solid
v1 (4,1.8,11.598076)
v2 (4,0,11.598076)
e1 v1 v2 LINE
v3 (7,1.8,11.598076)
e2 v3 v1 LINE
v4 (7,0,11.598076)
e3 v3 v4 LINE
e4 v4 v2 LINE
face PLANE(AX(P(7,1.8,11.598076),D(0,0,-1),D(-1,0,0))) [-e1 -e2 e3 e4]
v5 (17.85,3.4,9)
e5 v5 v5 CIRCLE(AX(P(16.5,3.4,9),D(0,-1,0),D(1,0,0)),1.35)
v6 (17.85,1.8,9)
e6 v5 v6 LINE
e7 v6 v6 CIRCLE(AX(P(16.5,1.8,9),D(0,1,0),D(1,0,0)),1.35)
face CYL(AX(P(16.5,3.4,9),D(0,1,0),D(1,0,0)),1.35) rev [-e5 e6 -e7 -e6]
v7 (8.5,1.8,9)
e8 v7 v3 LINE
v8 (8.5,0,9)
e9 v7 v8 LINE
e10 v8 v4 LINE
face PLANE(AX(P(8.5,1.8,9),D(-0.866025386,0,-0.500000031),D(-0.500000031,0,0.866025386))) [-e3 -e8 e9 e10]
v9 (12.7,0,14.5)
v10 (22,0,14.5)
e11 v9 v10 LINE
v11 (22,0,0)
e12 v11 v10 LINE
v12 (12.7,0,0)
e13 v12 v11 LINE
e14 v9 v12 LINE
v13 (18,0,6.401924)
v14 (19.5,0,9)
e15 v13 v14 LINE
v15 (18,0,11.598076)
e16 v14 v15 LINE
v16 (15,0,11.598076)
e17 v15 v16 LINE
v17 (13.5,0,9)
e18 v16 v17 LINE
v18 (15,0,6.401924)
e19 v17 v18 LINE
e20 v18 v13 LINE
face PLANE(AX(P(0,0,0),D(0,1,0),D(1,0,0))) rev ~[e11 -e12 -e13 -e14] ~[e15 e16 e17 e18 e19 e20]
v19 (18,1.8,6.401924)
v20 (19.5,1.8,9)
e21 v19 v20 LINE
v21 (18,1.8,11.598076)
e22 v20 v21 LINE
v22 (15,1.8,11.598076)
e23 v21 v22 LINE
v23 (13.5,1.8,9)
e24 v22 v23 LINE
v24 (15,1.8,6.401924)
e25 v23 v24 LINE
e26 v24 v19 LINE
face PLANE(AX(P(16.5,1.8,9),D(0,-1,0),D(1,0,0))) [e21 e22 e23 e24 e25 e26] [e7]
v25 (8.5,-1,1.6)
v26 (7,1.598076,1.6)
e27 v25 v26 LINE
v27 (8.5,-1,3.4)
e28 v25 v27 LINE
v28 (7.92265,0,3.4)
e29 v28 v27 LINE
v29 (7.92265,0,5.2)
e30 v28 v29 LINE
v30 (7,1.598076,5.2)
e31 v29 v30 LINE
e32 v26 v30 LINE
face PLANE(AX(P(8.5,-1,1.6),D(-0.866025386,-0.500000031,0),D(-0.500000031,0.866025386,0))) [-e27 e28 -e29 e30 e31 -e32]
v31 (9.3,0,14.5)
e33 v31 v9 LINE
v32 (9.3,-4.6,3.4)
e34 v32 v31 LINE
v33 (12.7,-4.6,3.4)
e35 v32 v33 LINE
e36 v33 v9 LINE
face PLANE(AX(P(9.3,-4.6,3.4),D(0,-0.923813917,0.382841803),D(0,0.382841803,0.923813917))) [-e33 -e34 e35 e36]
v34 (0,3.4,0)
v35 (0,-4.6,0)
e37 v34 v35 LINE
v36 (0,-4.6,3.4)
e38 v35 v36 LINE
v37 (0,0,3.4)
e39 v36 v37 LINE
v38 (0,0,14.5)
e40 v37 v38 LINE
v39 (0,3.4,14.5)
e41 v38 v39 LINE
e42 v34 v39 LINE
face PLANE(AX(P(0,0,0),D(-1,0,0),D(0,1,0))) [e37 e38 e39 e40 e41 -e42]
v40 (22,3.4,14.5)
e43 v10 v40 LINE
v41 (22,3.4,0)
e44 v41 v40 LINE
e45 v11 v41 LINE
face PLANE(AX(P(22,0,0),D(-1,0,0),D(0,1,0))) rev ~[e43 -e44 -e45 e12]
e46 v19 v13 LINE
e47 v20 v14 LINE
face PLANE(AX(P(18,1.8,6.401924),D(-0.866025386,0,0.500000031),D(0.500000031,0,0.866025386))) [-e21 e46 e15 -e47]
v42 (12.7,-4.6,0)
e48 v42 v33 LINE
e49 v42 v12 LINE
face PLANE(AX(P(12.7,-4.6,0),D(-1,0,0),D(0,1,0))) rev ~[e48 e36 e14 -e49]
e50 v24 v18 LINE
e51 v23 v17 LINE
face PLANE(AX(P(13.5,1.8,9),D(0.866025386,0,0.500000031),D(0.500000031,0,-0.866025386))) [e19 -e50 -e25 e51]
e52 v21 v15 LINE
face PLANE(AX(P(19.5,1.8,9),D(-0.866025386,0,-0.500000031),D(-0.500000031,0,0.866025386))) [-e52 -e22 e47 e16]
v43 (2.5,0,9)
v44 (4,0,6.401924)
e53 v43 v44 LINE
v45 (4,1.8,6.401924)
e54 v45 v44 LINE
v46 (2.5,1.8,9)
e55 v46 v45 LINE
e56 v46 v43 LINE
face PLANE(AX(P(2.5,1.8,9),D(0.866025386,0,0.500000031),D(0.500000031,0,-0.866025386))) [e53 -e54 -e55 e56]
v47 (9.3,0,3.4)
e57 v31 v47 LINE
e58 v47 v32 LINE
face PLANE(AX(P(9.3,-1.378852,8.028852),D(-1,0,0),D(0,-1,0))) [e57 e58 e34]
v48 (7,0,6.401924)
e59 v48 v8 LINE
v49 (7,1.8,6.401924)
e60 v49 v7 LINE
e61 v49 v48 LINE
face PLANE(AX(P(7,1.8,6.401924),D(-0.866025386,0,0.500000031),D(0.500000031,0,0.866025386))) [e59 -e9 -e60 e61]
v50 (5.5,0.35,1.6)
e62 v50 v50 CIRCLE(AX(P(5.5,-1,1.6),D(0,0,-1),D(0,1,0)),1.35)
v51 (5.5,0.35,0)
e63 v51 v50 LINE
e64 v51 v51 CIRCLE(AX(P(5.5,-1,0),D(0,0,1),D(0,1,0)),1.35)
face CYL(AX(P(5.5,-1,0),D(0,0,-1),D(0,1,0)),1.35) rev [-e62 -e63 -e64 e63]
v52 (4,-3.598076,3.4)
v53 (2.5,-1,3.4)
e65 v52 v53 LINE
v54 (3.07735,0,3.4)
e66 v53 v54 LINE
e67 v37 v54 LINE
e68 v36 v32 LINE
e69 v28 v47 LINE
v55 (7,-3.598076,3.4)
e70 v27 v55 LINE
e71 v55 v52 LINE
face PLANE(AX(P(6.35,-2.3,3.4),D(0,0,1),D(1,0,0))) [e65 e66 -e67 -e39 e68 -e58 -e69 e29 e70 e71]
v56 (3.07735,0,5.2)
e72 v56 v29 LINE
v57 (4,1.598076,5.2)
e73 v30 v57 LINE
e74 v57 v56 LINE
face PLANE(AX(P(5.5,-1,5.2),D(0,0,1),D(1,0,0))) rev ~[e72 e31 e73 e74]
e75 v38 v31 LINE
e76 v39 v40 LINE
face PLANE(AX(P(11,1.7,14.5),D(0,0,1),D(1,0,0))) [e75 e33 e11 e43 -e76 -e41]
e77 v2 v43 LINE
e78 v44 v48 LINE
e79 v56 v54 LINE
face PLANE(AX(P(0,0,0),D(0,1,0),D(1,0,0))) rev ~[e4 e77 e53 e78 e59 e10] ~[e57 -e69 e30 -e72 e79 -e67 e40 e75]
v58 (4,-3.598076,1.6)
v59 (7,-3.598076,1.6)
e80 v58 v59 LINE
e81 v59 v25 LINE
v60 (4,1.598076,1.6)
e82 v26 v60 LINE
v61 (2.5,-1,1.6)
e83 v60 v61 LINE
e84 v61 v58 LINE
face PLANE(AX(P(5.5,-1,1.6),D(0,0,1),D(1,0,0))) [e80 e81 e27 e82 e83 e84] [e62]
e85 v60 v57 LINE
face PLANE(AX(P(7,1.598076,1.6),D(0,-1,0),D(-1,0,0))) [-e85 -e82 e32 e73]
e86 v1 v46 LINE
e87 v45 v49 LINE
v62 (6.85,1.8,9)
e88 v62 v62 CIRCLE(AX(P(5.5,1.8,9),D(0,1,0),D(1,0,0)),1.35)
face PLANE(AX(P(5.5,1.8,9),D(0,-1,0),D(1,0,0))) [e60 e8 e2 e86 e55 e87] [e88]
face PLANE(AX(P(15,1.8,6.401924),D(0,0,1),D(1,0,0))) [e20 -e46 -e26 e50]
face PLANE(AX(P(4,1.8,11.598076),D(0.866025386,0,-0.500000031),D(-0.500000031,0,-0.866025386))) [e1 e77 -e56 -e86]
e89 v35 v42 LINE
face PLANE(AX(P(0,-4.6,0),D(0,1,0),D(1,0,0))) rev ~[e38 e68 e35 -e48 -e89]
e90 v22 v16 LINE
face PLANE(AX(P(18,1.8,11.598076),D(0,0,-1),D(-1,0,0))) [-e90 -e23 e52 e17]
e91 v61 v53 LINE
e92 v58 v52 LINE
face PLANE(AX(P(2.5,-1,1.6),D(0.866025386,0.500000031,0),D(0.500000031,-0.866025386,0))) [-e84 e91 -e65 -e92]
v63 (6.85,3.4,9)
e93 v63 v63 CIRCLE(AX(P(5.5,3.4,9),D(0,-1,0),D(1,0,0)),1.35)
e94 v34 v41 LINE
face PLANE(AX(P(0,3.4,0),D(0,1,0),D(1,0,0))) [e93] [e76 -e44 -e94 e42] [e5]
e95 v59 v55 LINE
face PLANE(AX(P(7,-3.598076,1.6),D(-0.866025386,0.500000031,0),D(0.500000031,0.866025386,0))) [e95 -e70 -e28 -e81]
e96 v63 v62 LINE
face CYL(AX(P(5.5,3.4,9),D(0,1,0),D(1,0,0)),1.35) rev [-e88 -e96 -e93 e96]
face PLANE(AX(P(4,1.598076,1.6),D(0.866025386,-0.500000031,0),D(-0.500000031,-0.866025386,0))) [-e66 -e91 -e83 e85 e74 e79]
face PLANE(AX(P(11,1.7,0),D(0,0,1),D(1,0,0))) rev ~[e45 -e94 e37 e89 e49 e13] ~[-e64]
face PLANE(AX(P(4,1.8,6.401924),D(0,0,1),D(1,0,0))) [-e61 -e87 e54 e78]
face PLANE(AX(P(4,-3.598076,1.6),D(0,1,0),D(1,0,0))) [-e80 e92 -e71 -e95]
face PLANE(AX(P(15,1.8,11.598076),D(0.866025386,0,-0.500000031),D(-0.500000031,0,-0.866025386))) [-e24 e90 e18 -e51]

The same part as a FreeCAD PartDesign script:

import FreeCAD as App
import Part
import Sketcher
from FreeCAD import Vector
Q = App.Units.Quantity


def add_polygon(sketch, points):
    """Adds a closed chain of lines whose ends are joined by coincident constraints."""
    first, n = sketch.GeometryCount, len(points)
    for a, b in zip(points, points[1:] + points[:1]):
        sketch.addGeometry(Part.LineSegment(App.Vector(*a, 0), App.Vector(*b, 0)), False)
    for i in range(n):
        sketch.addConstraint(Sketcher.Constraint("Coincident", first + i, 2, first + (i + 1) % n, 1))

doc = App.newDocument("Part")
body = doc.addObject("PartDesign::Body", "Body")

sketch1 = doc.addObject("Sketcher::SketchObject", "Sketch")
body.addObject(sketch1)
sketch1.AttachmentSupport = (doc.XY_Plane, [""])
sketch1.MapMode = "FlatFace"
sketch1.AttachmentOffset = App.Placement(Vector(0, 0, 1.6), App.Rotation())
add_polygon(sketch1, [(8.5, -1), (7, 1.6), (4, 1.6), (2.5, -1), (4, -3.6), (7, -3.6)])
sketch1.addConstraint(Sketcher.Constraint("Horizontal", 1))
sketch1.addConstraint(Sketcher.Constraint("Horizontal", 4))
sketch1.addConstraint(Sketcher.Constraint("Parallel", 0, 3))
sketch1.addConstraint(Sketcher.Constraint("Parallel", 2, 5))
sketch1.addConstraint(Sketcher.Constraint("Horizontal", 2, 2, 5, 2))
sketch1.addConstraint(Sketcher.Constraint("Vertical", 1, 2, 3, 2))
sketch1.addConstraint(Sketcher.Constraint("Vertical", 0, 2, 4, 2))
sketch1.addConstraint(Sketcher.Constraint("DistanceX", 1, 2, 1, 1, Q("3 mm")))
sketch1.addConstraint(Sketcher.Constraint("Angle", 0, Q("120.000002 deg")))
sketch1.addConstraint(Sketcher.Constraint("Distance", 0, Q("3 mm")))
sketch1.addConstraint(Sketcher.Constraint("DistanceX", -1, 1, 0, 2, Q("7 mm")))
sketch1.addConstraint(Sketcher.Constraint("DistanceY", 2, 2, -1, 1, Q("1 mm")))
pad1 = doc.addObject("PartDesign::Pad", "Pad")
body.addObject(pad1)
pad1.Profile = sketch1
pad1.Length = 3.6
body2 = doc.addObject("PartDesign::Body", "Body001")

sketch2 = doc.addObject("Sketcher::SketchObject", "Sketch001")
body2.addObject(sketch2)
sketch2.AttachmentSupport = (doc.getObject("XY_Plane001"), [""])
sketch2.MapMode = "FlatFace"
sketch2.addGeometry(Part.Circle(Vector(5.5, -1, 0), Vector(0, 0, 1), 1.4), False)
sketch2.addConstraint(Sketcher.Constraint("Diameter", 0, Q("2.7 mm")))
sketch2.addConstraint(Sketcher.Constraint("DistanceY", 0, 3, -1, 1, Q("1 mm")))
sketch2.addConstraint(Sketcher.Constraint("DistanceX", -1, 1, 0, 3, Q("5.5 mm")))
pad2 = doc.addObject("PartDesign::Pad", "Pad001")
body2.addObject(pad2)
pad2.Profile = sketch2
pad2.Length = 3.4
doc.recompute()

boolean = doc.addObject("PartDesign::Boolean", "Boolean")
body2.addObject(boolean)
boolean.Type = "Fuse"
boolean.addObjects([body])
body3 = doc.addObject("PartDesign::Body", "Body002")

sketch3 = doc.addObject("Sketcher::SketchObject", "Sketch002")
body3.addObject(sketch3)
sketch3.AttachmentSupport = (doc.getObject("XZ_Plane002"), [""])
sketch3.MapMode = "FlatFace"
sketch3.AttachmentOffset = App.Placement(Vector(0, 0, -1.8), App.Rotation())
add_polygon(sketch3, [(19.5, 9), (18, 11.6), (15, 11.6), (13.5, 9), (15, 6.4), (18, 6.4)])
sketch3.addConstraint(Sketcher.Constraint("Horizontal", 1))
sketch3.addConstraint(Sketcher.Constraint("Horizontal", 4))
sketch3.addConstraint(Sketcher.Constraint("Parallel", 0, 3))
sketch3.addConstraint(Sketcher.Constraint("Parallel", 2, 5))
sketch3.addConstraint(Sketcher.Constraint("Horizontal", 2, 2, 5, 2))
sketch3.addConstraint(Sketcher.Constraint("Vertical", 1, 2, 3, 2))
sketch3.addConstraint(Sketcher.Constraint("Vertical", 0, 2, 4, 2))
sketch3.addConstraint(Sketcher.Constraint("DistanceX", 1, 2, 1, 1, Q("3 mm")))
sketch3.addConstraint(Sketcher.Constraint("Angle", 0, Q("120.000002 deg")))
sketch3.addConstraint(Sketcher.Constraint("Distance", 0, Q("3 mm")))
sketch3.addConstraint(Sketcher.Constraint("DistanceX", -1, 1, 0, 2, Q("18 mm")))
sketch3.addConstraint(Sketcher.Constraint("DistanceY", -1, 1, 2, 2, Q("9 mm")))
pad3 = doc.addObject("PartDesign::Pad", "Pad002")
body3.addObject(pad3)
pad3.Profile = sketch3
pad3.Length = 1.8
body4 = doc.addObject("PartDesign::Body", "Body003")

sketch4 = doc.addObject("Sketcher::SketchObject", "Sketch003")
body4.addObject(sketch4)
sketch4.AttachmentSupport = (doc.getObject("XZ_Plane003"), [""])
sketch4.MapMode = "FlatFace"
sketch4.AttachmentOffset = App.Placement(Vector(0, 0, -3.4), App.Rotation())
sketch4.addGeometry(Part.Circle(Vector(16.5, 9, 0), Vector(0, 0, 1), 1.4), False)
sketch4.addConstraint(Sketcher.Constraint("Diameter", 0, Q("2.7 mm")))
sketch4.addConstraint(Sketcher.Constraint("DistanceY", -1, 1, 0, 3, Q("9 mm")))
sketch4.addConstraint(Sketcher.Constraint("DistanceX", -1, 1, 0, 3, Q("16.5 mm")))
pad4 = doc.addObject("PartDesign::Pad", "Pad003")
body4.addObject(pad4)
pad4.Profile = sketch4
pad4.Length = 3.4
doc.recompute()

boolean2 = doc.addObject("PartDesign::Boolean", "Boolean001")
body4.addObject(boolean2)
boolean2.Type = "Fuse"
boolean2.addObjects([body3])
body5 = doc.addObject("PartDesign::Body", "Body004")

sketch5 = doc.addObject("Sketcher::SketchObject", "Sketch004")
body5.addObject(sketch5)
sketch5.AttachmentSupport = (doc.getObject("XZ_Plane004"), [""])
sketch5.MapMode = "FlatFace"
sketch5.AttachmentOffset = App.Placement(Vector(0, 0, -1.8), App.Rotation())
add_polygon(sketch5, [(8.5, 9), (7, 11.6), (4, 11.6), (2.5, 9), (4, 6.4), (7, 6.4)])
sketch5.addConstraint(Sketcher.Constraint("Horizontal", 1))
sketch5.addConstraint(Sketcher.Constraint("Horizontal", 4))
sketch5.addConstraint(Sketcher.Constraint("Parallel", 0, 3))
sketch5.addConstraint(Sketcher.Constraint("Parallel", 2, 5))
sketch5.addConstraint(Sketcher.Constraint("Horizontal", 2, 2, 5, 2))
sketch5.addConstraint(Sketcher.Constraint("Vertical", 1, 2, 3, 2))
sketch5.addConstraint(Sketcher.Constraint("Vertical", 0, 2, 4, 2))
sketch5.addConstraint(Sketcher.Constraint("DistanceX", 1, 2, 1, 1, Q("3 mm")))
sketch5.addConstraint(Sketcher.Constraint("Angle", 0, Q("120.000002 deg")))
sketch5.addConstraint(Sketcher.Constraint("Distance", 0, Q("3 mm")))
sketch5.addConstraint(Sketcher.Constraint("DistanceX", -1, 1, 0, 2, Q("7 mm")))
sketch5.addConstraint(Sketcher.Constraint("DistanceY", -1, 1, 2, 2, Q("9 mm")))
pad5 = doc.addObject("PartDesign::Pad", "Pad004")
body5.addObject(pad5)
pad5.Profile = sketch5
pad5.Length = 1.8
body6 = doc.addObject("PartDesign::Body", "Body005")

sketch6 = doc.addObject("Sketcher::SketchObject", "Sketch005")
body6.addObject(sketch6)
sketch6.AttachmentSupport = (doc.getObject("XZ_Plane005"), [""])
sketch6.MapMode = "FlatFace"
sketch6.AttachmentOffset = App.Placement(Vector(0, 0, -3.4), App.Rotation())
sketch6.addGeometry(Part.Circle(Vector(5.5, 9, 0), Vector(0, 0, 1), 1.4), False)
sketch6.addConstraint(Sketcher.Constraint("Diameter", 0, Q("2.7 mm")))
sketch6.addConstraint(Sketcher.Constraint("DistanceY", -1, 1, 0, 3, Q("9 mm")))
sketch6.addConstraint(Sketcher.Constraint("DistanceX", -1, 1, 0, 3, Q("5.5 mm")))
pad6 = doc.addObject("PartDesign::Pad", "Pad005")
body6.addObject(pad6)
pad6.Profile = sketch6
pad6.Length = 3.4
doc.recompute()

boolean3 = doc.addObject("PartDesign::Boolean", "Boolean002")
body6.addObject(boolean3)
boolean3.Type = "Fuse"
boolean3.addObjects([body5])
body7 = doc.addObject("PartDesign::Body", "Body006")

sketch7 = doc.addObject("Sketcher::SketchObject", "Sketch006")
body7.addObject(sketch7)
sketch7.AttachmentSupport = (doc.getObject("XY_Plane006"), [""])
sketch7.MapMode = "FlatFace"
add_polygon(sketch7, [(0, 3.4), (0, 0), (22, 0), (22, 3.4)])
sketch7.addConstraint(Sketcher.Constraint("Vertical", 0))
sketch7.addConstraint(Sketcher.Constraint("Horizontal", 1))
sketch7.addConstraint(Sketcher.Constraint("Vertical", 2))
sketch7.addConstraint(Sketcher.Constraint("Horizontal", 3))
sketch7.addConstraint(Sketcher.Constraint("Coincident", 0, 2, -1, 1))
sketch7.addConstraint(Sketcher.Constraint("DistanceX", 1, 1, 1, 2, Q("22 mm")))
sketch7.addConstraint(Sketcher.Constraint("DistanceY", 0, 2, 0, 1, Q("3.4 mm")))
pad7 = doc.addObject("PartDesign::Pad", "Pad006")
body7.addObject(pad7)
pad7.Profile = sketch7
pad7.Length = 14.5
doc.recompute()

boolean4 = doc.addObject("PartDesign::Boolean", "Boolean003")
body7.addObject(boolean4)
boolean4.Type = "Cut"
boolean4.addObjects([body6])
doc.recompute()

boolean5 = doc.addObject("PartDesign::Boolean", "Boolean004")
body7.addObject(boolean5)
boolean5.Type = "Cut"
boolean5.addObjects([body4])
body8 = doc.addObject("PartDesign::Body", "Body007")

sketch8 = doc.addObject("Sketcher::SketchObject", "Sketch007")
body8.addObject(sketch8)
sketch8.AttachmentSupport = (doc.getObject("XY_Plane007"), [""])
sketch8.MapMode = "FlatFace"
add_polygon(sketch8, [(0, 0), (0, -4.6), (12.7, -4.6), (12.7, 0)])
sketch8.addConstraint(Sketcher.Constraint("Vertical", 0))
sketch8.addConstraint(Sketcher.Constraint("Horizontal", 1))
sketch8.addConstraint(Sketcher.Constraint("Vertical", 2))
sketch8.addConstraint(Sketcher.Constraint("Horizontal", 3))
sketch8.addConstraint(Sketcher.Constraint("Coincident", 3, 2, -1, 1))
sketch8.addConstraint(Sketcher.Constraint("DistanceX", 1, 1, 1, 2, Q("12.7 mm")))
sketch8.addConstraint(Sketcher.Constraint("DistanceY", 0, 2, 0, 1, Q("4.6 mm")))
pad8 = doc.addObject("PartDesign::Pad", "Pad007")
body8.addObject(pad8)
pad8.Profile = sketch8
pad8.Length = 3.4
doc.recompute()

boolean6 = doc.addObject("PartDesign::Boolean", "Boolean005")
body8.addObject(boolean6)
boolean6.Type = "Fuse"
boolean6.addObjects([body7])
doc.recompute()

boolean7 = doc.addObject("PartDesign::Boolean", "Boolean006")
body8.addObject(boolean7)
boolean7.Type = "Cut"
boolean7.addObjects([body2])
body9 = doc.addObject("PartDesign::Body", "Body008")

sketch9 = doc.addObject("Sketcher::SketchObject", "Sketch008")
body9.addObject(sketch9)
sketch9.AttachmentSupport = (doc.getObject("YZ_Plane008"), [""])
sketch9.MapMode = "FlatFace"
add_polygon(sketch9, [(0, 3.4), (0, 14.5), (-4.6, 3.4)])
sketch9.addConstraint(Sketcher.Constraint("Vertical", 0))
sketch9.addConstraint(Sketcher.Constraint("Horizontal", 2))
sketch9.addConstraint(Sketcher.Constraint("PointOnObject", 0, 2, -2))
sketch9.addConstraint(Sketcher.Constraint("DistanceX", 2, 1, 2, 2, Q("4.6 mm")))
sketch9.addConstraint(Sketcher.Constraint("DistanceY", 0, 1, 0, 2, Q("11.1 mm")))
sketch9.addConstraint(Sketcher.Constraint("DistanceY", -1, 1, 0, 2, Q("14.5 mm")))
pad9 = doc.addObject("PartDesign::Pad", "Pad008")
body9.addObject(pad9)
pad9.Profile = sketch9
pad9.Length = 3.4
body10 = doc.addObject("PartDesign::Body", "Body009")
doc.recompute()

body9.Placement = App.Placement(Vector(9.3, 0, 0), App.Rotation(Vector(0, 0, 1), 0))
boolean8 = doc.addObject("PartDesign::Boolean", "Boolean007")
body10.addObject(boolean8)
boolean8.Type = "Fuse"
boolean8.addObjects([body9])
doc.recompute()

boolean9 = doc.addObject("PartDesign::Boolean", "Boolean008")
body10.addObject(boolean9)
boolean9.Type = "Fuse"
boolean9.addObjects([body8])

doc.recompute()
